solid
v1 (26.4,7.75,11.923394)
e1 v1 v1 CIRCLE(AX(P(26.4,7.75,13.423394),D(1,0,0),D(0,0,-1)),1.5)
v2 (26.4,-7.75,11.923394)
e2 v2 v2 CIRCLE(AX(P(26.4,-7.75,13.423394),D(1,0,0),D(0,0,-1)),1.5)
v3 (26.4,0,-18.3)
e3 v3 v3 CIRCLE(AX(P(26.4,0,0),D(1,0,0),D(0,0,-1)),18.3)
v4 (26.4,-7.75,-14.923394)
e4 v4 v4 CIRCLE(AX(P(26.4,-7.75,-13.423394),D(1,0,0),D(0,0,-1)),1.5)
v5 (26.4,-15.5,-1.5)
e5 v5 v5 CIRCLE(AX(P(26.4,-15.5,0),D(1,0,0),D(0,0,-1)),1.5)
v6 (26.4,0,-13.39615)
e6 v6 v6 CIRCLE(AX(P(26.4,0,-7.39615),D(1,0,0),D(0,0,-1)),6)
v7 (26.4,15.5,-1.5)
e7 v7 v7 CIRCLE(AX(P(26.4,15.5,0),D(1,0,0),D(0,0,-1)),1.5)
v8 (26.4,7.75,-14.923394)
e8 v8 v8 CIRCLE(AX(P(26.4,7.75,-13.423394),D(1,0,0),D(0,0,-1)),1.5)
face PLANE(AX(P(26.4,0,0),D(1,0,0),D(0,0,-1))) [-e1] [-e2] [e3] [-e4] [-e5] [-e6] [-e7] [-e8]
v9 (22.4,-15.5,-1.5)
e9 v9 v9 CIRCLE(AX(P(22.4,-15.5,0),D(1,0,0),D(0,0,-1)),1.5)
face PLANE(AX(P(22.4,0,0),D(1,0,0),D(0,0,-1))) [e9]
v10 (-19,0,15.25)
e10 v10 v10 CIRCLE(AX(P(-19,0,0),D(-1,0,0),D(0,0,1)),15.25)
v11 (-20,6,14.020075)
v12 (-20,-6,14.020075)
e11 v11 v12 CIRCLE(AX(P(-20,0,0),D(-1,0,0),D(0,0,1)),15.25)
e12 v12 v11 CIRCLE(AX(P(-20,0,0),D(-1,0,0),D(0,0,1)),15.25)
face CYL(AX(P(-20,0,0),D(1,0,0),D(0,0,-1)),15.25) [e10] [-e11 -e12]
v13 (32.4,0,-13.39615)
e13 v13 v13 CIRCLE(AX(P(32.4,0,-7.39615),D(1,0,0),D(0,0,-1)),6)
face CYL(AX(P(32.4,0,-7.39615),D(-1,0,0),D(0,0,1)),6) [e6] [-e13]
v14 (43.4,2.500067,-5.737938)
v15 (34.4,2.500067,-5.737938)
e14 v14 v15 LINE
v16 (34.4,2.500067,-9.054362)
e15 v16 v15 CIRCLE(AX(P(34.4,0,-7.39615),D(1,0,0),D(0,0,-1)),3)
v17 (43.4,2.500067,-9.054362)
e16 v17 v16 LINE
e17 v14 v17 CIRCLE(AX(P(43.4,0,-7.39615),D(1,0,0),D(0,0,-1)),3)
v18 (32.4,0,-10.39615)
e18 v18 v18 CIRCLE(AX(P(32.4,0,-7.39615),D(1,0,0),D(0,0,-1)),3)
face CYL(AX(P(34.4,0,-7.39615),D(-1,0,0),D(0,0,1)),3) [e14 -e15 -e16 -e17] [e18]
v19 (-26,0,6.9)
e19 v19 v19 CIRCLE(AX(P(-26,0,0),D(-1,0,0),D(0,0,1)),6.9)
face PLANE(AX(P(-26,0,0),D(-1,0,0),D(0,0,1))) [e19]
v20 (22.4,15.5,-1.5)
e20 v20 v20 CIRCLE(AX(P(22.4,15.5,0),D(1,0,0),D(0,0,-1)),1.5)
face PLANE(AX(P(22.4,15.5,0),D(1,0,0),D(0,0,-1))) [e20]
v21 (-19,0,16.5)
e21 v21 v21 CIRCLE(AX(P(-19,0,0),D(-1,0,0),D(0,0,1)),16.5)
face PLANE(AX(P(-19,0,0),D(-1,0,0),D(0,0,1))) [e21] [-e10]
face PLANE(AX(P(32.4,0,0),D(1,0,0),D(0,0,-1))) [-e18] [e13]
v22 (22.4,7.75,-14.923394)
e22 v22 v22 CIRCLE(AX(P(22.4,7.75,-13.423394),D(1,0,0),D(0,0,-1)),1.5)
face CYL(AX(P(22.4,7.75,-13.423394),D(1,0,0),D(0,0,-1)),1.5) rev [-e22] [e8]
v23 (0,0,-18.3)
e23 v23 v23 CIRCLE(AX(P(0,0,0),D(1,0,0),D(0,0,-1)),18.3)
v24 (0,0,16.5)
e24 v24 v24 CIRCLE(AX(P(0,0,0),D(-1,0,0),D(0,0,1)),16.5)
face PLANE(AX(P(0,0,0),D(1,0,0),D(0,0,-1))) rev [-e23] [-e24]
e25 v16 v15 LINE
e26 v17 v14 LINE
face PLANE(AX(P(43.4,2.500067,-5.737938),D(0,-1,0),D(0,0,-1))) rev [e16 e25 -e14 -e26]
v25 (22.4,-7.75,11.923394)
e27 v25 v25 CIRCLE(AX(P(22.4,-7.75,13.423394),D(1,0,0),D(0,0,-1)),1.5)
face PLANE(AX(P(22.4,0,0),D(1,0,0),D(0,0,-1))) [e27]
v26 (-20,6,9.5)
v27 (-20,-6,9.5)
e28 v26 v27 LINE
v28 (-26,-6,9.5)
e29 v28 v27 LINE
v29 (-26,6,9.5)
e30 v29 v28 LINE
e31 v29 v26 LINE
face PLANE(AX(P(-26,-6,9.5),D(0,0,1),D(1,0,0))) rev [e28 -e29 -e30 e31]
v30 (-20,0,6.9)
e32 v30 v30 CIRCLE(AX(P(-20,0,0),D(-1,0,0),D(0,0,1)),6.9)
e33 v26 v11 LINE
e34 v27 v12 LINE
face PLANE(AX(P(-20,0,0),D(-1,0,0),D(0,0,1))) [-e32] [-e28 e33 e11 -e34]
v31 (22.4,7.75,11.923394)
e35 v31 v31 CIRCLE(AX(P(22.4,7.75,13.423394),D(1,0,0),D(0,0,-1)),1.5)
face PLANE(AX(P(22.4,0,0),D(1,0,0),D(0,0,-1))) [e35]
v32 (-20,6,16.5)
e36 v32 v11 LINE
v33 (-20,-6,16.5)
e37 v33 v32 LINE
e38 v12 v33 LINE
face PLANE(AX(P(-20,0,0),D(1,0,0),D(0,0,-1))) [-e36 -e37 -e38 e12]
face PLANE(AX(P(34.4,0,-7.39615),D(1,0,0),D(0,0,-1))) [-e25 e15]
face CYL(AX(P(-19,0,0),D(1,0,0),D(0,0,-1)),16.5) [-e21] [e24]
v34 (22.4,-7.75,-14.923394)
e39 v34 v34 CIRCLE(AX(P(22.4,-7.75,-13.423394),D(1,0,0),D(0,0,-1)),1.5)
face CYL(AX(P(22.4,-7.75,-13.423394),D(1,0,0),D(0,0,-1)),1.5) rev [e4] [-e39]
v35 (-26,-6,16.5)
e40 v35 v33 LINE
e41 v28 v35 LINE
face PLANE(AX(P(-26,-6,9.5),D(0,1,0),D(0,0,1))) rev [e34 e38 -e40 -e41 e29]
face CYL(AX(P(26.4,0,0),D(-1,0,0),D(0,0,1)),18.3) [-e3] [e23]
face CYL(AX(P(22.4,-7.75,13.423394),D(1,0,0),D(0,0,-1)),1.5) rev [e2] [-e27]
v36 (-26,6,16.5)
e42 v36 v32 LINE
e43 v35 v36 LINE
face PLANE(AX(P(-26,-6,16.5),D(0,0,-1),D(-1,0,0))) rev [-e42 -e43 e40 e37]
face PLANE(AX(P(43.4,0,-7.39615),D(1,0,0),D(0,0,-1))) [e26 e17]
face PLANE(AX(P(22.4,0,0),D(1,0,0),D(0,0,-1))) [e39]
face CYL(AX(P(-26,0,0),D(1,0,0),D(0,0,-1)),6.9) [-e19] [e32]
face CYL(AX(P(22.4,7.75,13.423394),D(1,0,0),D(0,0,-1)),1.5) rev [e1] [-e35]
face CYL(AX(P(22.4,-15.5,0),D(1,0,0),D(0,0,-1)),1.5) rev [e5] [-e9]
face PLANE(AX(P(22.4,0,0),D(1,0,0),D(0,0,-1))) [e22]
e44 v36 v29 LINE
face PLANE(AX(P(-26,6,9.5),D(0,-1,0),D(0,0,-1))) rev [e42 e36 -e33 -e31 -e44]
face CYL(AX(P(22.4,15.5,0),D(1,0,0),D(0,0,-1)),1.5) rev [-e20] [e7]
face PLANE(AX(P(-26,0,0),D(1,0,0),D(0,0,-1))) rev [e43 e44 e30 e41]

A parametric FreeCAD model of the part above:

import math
import FreeCAD as App
import Part
import Sketcher
from FreeCAD import Vector
Q = App.Units.Quantity


def add_polygon(sketch, points):
    """Adds a closed chain of lines whose ends are joined by coincident constraints."""
    first, n = sketch.GeometryCount, len(points)
    for a, b in zip(points, points[1:] + points[:1]):
        sketch.addGeometry(Part.LineSegment(App.Vector(*a, 0), App.Vector(*b, 0)), False)
    for i in range(n):
        sketch.addConstraint(Sketcher.Constraint("Coincident", first + i, 2, first + (i + 1) % n, 1))

doc = App.newDocument("Part")
body = doc.addObject("PartDesign::Body", "Body")

# Sketch on YZ plane
sketch1 = body.newObject("Sketcher::SketchObject", "Sketch")
sketch1.AttachmentSupport = (doc.getObject("YZ_Plane"), [""])
sketch1.MapMode = "FlatFace"
sketch1.addGeometry(Part.Circle(Vector(0, 0, 0), Vector(0, 0, 1), 18.3), False)
sketch1.addConstraint([
    Sketcher.Constraint("Coincident", 0, 3, -1, 1),
    Sketcher.Constraint("Diameter", 0, Q("36.6 mm")),
])
pad1 = body.newObject("PartDesign::Pad", "Pad")
pad1.Profile = sketch1
pad1.Length = 26.4

# Sketch on YZ plane
sketch2 = body.newObject("Sketcher::SketchObject", "Sketch001")
sketch2.AttachmentSupport = (doc.getObject("YZ_Plane"), [""])
sketch2.MapMode = "FlatFace"
sketch2.addGeometry(Part.Circle(Vector(0, 0, 0), Vector(0, 0, 1), 16.5), False)
sketch2.addConstraint([
    Sketcher.Constraint("Coincident", 0, 3, -1, 1),
    Sketcher.Constraint("Diameter", 0, Q("33 mm")),
])
pad2 = body.newObject("PartDesign::Pad", "Pad001")
pad2.Profile = sketch2
pad2.Length = 19
pad2.Reversed = True

# Sketch on YZ plane
sketch3 = body.newObject("Sketcher::SketchObject", "Sketch002")
sketch3.AttachmentSupport = (doc.getObject("YZ_Plane"), [""])
sketch3.MapMode = "FlatFace"
sketch3.AttachmentOffset = App.Placement(Vector(0, 0, -19), App.Rotation())
sketch3.addGeometry(Part.Circle(Vector(0, 0, 0), Vector(0, 0, 1), 15.25), False)
sketch3.addConstraint([
    Sketcher.Constraint("Coincident", 0, 3, -1, 1),
    Sketcher.Constraint("Diameter", 0, Q("30.5 mm")),
])
pad3 = body.newObject("PartDesign::Pad", "Pad002")
pad3.Profile = sketch3
pad3.Length = 1
pad3.Reversed = True

# Sketch on YZ plane
sketch4 = body.newObject("Sketcher::SketchObject", "Sketch003")
sketch4.AttachmentSupport = (doc.getObject("YZ_Plane"), [""])
sketch4.MapMode = "FlatFace"
sketch4.AttachmentOffset = App.Placement(Vector(0, 0, -20), App.Rotation())
sketch4.addGeometry(Part.Circle(Vector(0, 0, 0), Vector(0, 0, 1), 6.9), False)
sketch4.addConstraint([
    Sketcher.Constraint("Coincident", 0, 3, -1, 1),
    Sketcher.Constraint("Diameter", 0, Q("13.8 mm")),
])
pad4 = body.newObject("PartDesign::Pad", "Pad003")
pad4.Profile = sketch4
pad4.Length = 6
pad4.Reversed = True

# Sketch on YZ plane
sketch5 = body.newObject("Sketcher::SketchObject", "Sketch004")
sketch5.AttachmentSupport = (doc.getObject("YZ_Plane"), [""])
sketch5.MapMode = "FlatFace"
sketch5.AttachmentOffset = App.Placement(Vector(0, 0, -20), App.Rotation())
add_polygon(sketch5, [(6, 9.5), (-6, 9.5), (-6, 16.5), (6, 16.5)])  # lines 0-3
sketch5.addConstraint([
    Sketcher.Constraint("Horizontal", 0),
    Sketcher.Constraint("Vertical", 1),
    Sketcher.Constraint("Horizontal", 2),
    Sketcher.Constraint("Vertical", 3),
    Sketcher.Constraint("DistanceX", 0, 2, 0, 1, Q("12 mm")),
    Sketcher.Constraint("DistanceY", 1, 1, 1, 2, Q("7 mm")),
    Sketcher.Constraint("DistanceX", 0, 2, -1, 1, Q("6 mm")),
    Sketcher.Constraint("DistanceY", -1, 1, 0, 2, Q("9.5 mm")),
])
pad5 = body.newObject("PartDesign::Pad", "Pad004")
pad5.Profile = sketch5
pad5.Length = 6
pad5.Reversed = True

# Sketch on YZ plane
sketch6 = body.newObject("Sketcher::SketchObject", "Sketch005")
sketch6.AttachmentSupport = (doc.getObject("YZ_Plane"), [""])
sketch6.MapMode = "FlatFace"
sketch6.AttachmentOffset = App.Placement(Vector(0, 0, 26.4), App.Rotation())
sketch6.addGeometry([
    Part.Circle(Vector(7.75, 13.423394, 0), Vector(0, 0, 1), 1.5),  # 0
    Part.Circle(Vector(-7.75, 13.423394, 0), Vector(0, 0, 1), 1.5),  # 1
    Part.Circle(Vector(-15.5, 0, 0), Vector(0, 0, 1), 1.5),  # 2
    Part.Circle(Vector(-7.75, -13.423394, 0), Vector(0, 0, 1), 1.5),  # 3
    Part.Circle(Vector(7.75, -13.423394, 0), Vector(0, 0, 1), 1.5),  # 4
    Part.Circle(Vector(15.5, 0, 0), Vector(0, 0, 1), 1.5),  # 5
], False)
sketch6.addConstraint([
    Sketcher.Constraint("Equal", 0, 1),
    Sketcher.Constraint("Equal", 1, 2),
    Sketcher.Constraint("Equal", 2, 3),
    Sketcher.Constraint("Equal", 3, 4),
    Sketcher.Constraint("Equal", 4, 5),
    Sketcher.Constraint("Symmetric", 0, 3, 3, 3, -1, 1),
    Sketcher.Constraint("Symmetric", 1, 3, 4, 3, -1, 1),
    Sketcher.Constraint("Symmetric", 2, 3, 5, 3, -1, 1),
    Sketcher.Constraint("Symmetric", 0, 3, 1, 3, -2),
    Sketcher.Constraint("PointOnObject", 2, 3, -1),
    Sketcher.Constraint("Diameter", 0, Q("3 mm")),
    Sketcher.Constraint("DistanceX", 2, 3, 5, 3, Q("31 mm")),
    Sketcher.Constraint("DistanceX", 1, 3, 0, 3, Q("15.5 mm")),
    Sketcher.Constraint("DistanceY", -1, 1, 0, 3, Q("13.423394 mm")),
])
pocket1 = body.newObject("PartDesign::Pocket", "Pocket")
pocket1.Profile = sketch6
pocket1.Length = 4

# Sketch on YZ plane
sketch7 = body.newObject("Sketcher::SketchObject", "Sketch006")
sketch7.AttachmentSupport = (doc.getObject("YZ_Plane"), [""])
sketch7.MapMode = "FlatFace"
sketch7.AttachmentOffset = App.Placement(Vector(0, 0, 26.4), App.Rotation())
sketch7.addGeometry(Part.Circle(Vector(0, -7.39615, 0), Vector(0, 0, 1), 6), False)
sketch7.addConstraint([
    Sketcher.Constraint("PointOnObject", 0, 3, -2),
    Sketcher.Constraint("Diameter", 0, Q("12 mm")),
    Sketcher.Constraint("DistanceY", 0, 3, -1, 1, Q("7.39615 mm")),
])
pad6 = body.newObject("PartDesign::Pad", "Pad005")
pad6.Profile = sketch7
pad6.Length = 6

# Sketch on YZ plane
sketch8 = body.newObject("Sketcher::SketchObject", "Sketch007")
sketch8.AttachmentSupport = (doc.getObject("YZ_Plane"), [""])
sketch8.MapMode = "FlatFace"
sketch8.AttachmentOffset = App.Placement(Vector(0, 0, 32.4), App.Rotation())
sketch8.addGeometry(Part.Circle(Vector(0, -7.39615, 0), Vector(0, 0, 1), 3), False)
sketch8.addConstraint([
    Sketcher.Constraint("PointOnObject", 0, 3, -2),
    Sketcher.Constraint("Diameter", 0, Q("6 mm")),
    Sketcher.Constraint("DistanceY", 0, 3, -1, 1, Q("7.39615 mm")),
])
pad7 = body.newObject("PartDesign::Pad", "Pad006")
pad7.Profile = sketch8
pad7.Length = 2

# Sketch on YZ plane
sketch9 = body.newObject("Sketcher::SketchObject", "Sketch008")
sketch9.AttachmentSupport = (doc.getObject("YZ_Plane"), [""])
sketch9.MapMode = "FlatFace"
sketch9.AttachmentOffset = App.Placement(Vector(0, 0, 34.4), App.Rotation())
sketch9.addGeometry([
    Part.LineSegment(Vector(2.500067, -9.054362, 0), Vector(2.500067, -5.737938, 0)),
    Part.ArcOfCircle(Part.Circle(Vector(0, -7.39615, 0), Vector(0, 0, 1), 3), math.radians(33.555), math.radians(326.445)),
], False)
sketch9.addConstraint([
    Sketcher.Constraint("Coincident", 0, 1, 1, 2),
    Sketcher.Constraint("Coincident", 1, 1, 0, 2),
    Sketcher.Constraint("Vertical", 0),
    Sketcher.Constraint("PointOnObject", 1, 3, -2),
    Sketcher.Constraint("Radius", 1, Q("3 mm")),
    Sketcher.Constraint("DistanceY", 0, 1, 0, 2, Q("3.316423 mm")),
    Sketcher.Constraint("DistanceY", 1, 3, -1, 1, Q("7.39615 mm")),
])
pad8 = body.newObject("PartDesign::Pad", "Pad007")
pad8.Profile = sketch9
pad8.Length = 9

doc.recompute()
